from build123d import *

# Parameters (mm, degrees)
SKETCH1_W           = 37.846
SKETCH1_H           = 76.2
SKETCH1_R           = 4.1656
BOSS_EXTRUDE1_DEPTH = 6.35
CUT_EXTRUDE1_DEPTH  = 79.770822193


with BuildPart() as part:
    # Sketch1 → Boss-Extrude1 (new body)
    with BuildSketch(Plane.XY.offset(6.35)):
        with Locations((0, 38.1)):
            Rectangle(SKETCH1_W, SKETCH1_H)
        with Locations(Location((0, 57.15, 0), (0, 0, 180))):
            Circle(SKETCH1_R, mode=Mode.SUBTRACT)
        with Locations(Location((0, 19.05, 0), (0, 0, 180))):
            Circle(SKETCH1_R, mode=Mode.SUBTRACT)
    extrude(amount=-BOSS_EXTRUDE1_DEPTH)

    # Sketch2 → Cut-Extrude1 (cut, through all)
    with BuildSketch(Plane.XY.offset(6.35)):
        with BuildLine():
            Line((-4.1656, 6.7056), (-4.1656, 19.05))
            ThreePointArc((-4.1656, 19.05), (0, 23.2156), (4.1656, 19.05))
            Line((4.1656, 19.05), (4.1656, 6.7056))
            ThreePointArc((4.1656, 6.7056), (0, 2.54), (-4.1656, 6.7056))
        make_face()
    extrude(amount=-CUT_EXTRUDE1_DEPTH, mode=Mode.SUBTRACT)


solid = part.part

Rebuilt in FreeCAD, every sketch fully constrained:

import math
import FreeCAD as App
import Part
import Sketcher
from FreeCAD import Vector
Q = App.Units.Quantity


def add_polygon(sketch, points):
    """Adds a closed chain of lines whose ends are joined by coincident constraints."""
    first, n = sketch.GeometryCount, len(points)
    for a, b in zip(points, points[1:] + points[:1]):
        sketch.addGeometry(Part.LineSegment(App.Vector(*a, 0), App.Vector(*b, 0)), False)
    for i in range(n):
        sketch.addConstraint(Sketcher.Constraint("Coincident", first + i, 2, first + (i + 1) % n, 1))

doc = App.newDocument("Part")
params = doc.addObject("Spreadsheet::Sheet", "Params")
for row, (alias, value) in enumerate([
    ("sketch1_height", "3 in"),
    ("sketch1_diameter", "0.328 in"),
    ("sketch1_width", "1.49 in"),
    ("pad1_length", "0.25 in"),
    ("sketch2_radius", "0.164 in"),
    ("sketch2_height", "0.486 in"),
], start=1):
    params.set(f"A{row}", alias)
    params.set(f"B{row}", "=" + value)
    params.setAlias(f"B{row}", alias)

body = doc.addObject("PartDesign::Body", "Body")

# Sketch on XY plane
sketch1 = doc.addObject("Sketcher::SketchObject", "Sketch")
body.addObject(sketch1)
sketch1.AttachmentSupport = (doc.XY_Plane, [""])
sketch1.MapMode = "FlatFace"
sketch1.AttachmentOffset = App.Placement(Vector(0, 0, 0.25 * 25.4), App.Rotation())
add_polygon(sketch1, [(-18.923, 76.2), (-18.923, 0), (18.923, 0), (18.923, 76.2)])  # lines 0-3
sketch1.addGeometry(Part.Circle(Vector(0, 19.05, 0), Vector(0, 0, 1), 4.1656), False)  # 4
sketch1.addGeometry(Part.Circle(Vector(0, 57.15, 0), Vector(0, 0, 1), 4.1656), False)  # 5
sketch1.addConstraint([
    Sketcher.Constraint("Vertical", 0),
    Sketcher.Constraint("Horizontal", 1),
    Sketcher.Constraint("Vertical", 2),
    Sketcher.Constraint("Horizontal", 3),
    Sketcher.Constraint("Equal", 4, 5),
    Sketcher.Constraint("Symmetric", 0, 2, 1, 2, -1, 1),
    Sketcher.Constraint("PointOnObject", 4, 3, -2),
    Sketcher.Constraint("PointOnObject", 5, 3, -2),
    Sketcher.Constraint("DistanceY", 0, 2, 0, 1, Q("3 in")),
    Sketcher.Constraint("Diameter", 4, Q("0.328 in")),
    Sketcher.Constraint("DistanceX", 1, 1, 1, 2, Q("1.49 in")),
    Sketcher.Constraint("DistanceY", 4, 3, 5, 3, Q("1.5 in")),
    Sketcher.Constraint("DistanceY", -1, 1, 4, 3, Q("0.75 in")),
])
sketch1.setExpression("Constraints[12]", "Params.sketch1_height")
sketch1.setExpression("Constraints[13]", "Params.sketch1_diameter")
sketch1.setExpression("Constraints[14]", "Params.sketch1_width")
pad1 = doc.addObject("PartDesign::Pad", "Pad")
body.addObject(pad1)
pad1.Profile = sketch1
pad1.setExpression("Length", "Params.pad1_length")
pad1.Reversed = True

# Sketch on XY plane
sketch2 = doc.addObject("Sketcher::SketchObject", "Sketch001")
body.addObject(sketch2)
sketch2.AttachmentSupport = (doc.XY_Plane, [""])
sketch2.MapMode = "FlatFace"
sketch2.AttachmentOffset = App.Placement(Vector(0, 0, 0.25 * 25.4), App.Rotation())
sketch2.addGeometry([
    Part.LineSegment(Vector(-4.1656, 19.05, 0), Vector(-4.1656, 6.7056, 0)),
    Part.ArcOfCircle(Part.Circle(Vector(0, 6.7056, 0), Vector(0, 0, 1), 4.1656), math.radians(180), math.radians(360)),
    Part.LineSegment(Vector(4.1656, 6.7056, 0), Vector(4.1656, 19.05, 0)),
    Part.ArcOfCircle(Part.Circle(Vector(0, 19.05, 0), Vector(0, 0, 1), 4.1656), math.radians(0), math.radians(180)),
], False)
sketch2.addConstraint([
    Sketcher.Constraint("Tangent", 0, 2, 1, 1),
    Sketcher.Constraint("Tangent", 1, 2, 2, 1),
    Sketcher.Constraint("Tangent", 2, 2, 3, 1),
    Sketcher.Constraint("Tangent", 3, 2, 0, 1),
    Sketcher.Constraint("Vertical", 0),
    Sketcher.Constraint("Vertical", 2),
    Sketcher.Constraint("PointOnObject", 1, 3, -2),
    Sketcher.Constraint("Radius", 1, Q("0.164 in")),
    Sketcher.Constraint("DistanceY", 0, 2, 0, 1, Q("0.486 in")),
    Sketcher.Constraint("DistanceY", -1, 1, 3, 3, Q("0.75 in")),
])
sketch2.setExpression("Constraints[7]", "Params.sketch2_radius")
sketch2.setExpression("Constraints[8]", "Params.sketch2_height")
pocket1 = doc.addObject("PartDesign::Pocket", "Pocket")
body.addObject(pocket1)
pocket1.Profile = sketch2
pocket1.Type = "ThroughAll"

doc.recompute()
